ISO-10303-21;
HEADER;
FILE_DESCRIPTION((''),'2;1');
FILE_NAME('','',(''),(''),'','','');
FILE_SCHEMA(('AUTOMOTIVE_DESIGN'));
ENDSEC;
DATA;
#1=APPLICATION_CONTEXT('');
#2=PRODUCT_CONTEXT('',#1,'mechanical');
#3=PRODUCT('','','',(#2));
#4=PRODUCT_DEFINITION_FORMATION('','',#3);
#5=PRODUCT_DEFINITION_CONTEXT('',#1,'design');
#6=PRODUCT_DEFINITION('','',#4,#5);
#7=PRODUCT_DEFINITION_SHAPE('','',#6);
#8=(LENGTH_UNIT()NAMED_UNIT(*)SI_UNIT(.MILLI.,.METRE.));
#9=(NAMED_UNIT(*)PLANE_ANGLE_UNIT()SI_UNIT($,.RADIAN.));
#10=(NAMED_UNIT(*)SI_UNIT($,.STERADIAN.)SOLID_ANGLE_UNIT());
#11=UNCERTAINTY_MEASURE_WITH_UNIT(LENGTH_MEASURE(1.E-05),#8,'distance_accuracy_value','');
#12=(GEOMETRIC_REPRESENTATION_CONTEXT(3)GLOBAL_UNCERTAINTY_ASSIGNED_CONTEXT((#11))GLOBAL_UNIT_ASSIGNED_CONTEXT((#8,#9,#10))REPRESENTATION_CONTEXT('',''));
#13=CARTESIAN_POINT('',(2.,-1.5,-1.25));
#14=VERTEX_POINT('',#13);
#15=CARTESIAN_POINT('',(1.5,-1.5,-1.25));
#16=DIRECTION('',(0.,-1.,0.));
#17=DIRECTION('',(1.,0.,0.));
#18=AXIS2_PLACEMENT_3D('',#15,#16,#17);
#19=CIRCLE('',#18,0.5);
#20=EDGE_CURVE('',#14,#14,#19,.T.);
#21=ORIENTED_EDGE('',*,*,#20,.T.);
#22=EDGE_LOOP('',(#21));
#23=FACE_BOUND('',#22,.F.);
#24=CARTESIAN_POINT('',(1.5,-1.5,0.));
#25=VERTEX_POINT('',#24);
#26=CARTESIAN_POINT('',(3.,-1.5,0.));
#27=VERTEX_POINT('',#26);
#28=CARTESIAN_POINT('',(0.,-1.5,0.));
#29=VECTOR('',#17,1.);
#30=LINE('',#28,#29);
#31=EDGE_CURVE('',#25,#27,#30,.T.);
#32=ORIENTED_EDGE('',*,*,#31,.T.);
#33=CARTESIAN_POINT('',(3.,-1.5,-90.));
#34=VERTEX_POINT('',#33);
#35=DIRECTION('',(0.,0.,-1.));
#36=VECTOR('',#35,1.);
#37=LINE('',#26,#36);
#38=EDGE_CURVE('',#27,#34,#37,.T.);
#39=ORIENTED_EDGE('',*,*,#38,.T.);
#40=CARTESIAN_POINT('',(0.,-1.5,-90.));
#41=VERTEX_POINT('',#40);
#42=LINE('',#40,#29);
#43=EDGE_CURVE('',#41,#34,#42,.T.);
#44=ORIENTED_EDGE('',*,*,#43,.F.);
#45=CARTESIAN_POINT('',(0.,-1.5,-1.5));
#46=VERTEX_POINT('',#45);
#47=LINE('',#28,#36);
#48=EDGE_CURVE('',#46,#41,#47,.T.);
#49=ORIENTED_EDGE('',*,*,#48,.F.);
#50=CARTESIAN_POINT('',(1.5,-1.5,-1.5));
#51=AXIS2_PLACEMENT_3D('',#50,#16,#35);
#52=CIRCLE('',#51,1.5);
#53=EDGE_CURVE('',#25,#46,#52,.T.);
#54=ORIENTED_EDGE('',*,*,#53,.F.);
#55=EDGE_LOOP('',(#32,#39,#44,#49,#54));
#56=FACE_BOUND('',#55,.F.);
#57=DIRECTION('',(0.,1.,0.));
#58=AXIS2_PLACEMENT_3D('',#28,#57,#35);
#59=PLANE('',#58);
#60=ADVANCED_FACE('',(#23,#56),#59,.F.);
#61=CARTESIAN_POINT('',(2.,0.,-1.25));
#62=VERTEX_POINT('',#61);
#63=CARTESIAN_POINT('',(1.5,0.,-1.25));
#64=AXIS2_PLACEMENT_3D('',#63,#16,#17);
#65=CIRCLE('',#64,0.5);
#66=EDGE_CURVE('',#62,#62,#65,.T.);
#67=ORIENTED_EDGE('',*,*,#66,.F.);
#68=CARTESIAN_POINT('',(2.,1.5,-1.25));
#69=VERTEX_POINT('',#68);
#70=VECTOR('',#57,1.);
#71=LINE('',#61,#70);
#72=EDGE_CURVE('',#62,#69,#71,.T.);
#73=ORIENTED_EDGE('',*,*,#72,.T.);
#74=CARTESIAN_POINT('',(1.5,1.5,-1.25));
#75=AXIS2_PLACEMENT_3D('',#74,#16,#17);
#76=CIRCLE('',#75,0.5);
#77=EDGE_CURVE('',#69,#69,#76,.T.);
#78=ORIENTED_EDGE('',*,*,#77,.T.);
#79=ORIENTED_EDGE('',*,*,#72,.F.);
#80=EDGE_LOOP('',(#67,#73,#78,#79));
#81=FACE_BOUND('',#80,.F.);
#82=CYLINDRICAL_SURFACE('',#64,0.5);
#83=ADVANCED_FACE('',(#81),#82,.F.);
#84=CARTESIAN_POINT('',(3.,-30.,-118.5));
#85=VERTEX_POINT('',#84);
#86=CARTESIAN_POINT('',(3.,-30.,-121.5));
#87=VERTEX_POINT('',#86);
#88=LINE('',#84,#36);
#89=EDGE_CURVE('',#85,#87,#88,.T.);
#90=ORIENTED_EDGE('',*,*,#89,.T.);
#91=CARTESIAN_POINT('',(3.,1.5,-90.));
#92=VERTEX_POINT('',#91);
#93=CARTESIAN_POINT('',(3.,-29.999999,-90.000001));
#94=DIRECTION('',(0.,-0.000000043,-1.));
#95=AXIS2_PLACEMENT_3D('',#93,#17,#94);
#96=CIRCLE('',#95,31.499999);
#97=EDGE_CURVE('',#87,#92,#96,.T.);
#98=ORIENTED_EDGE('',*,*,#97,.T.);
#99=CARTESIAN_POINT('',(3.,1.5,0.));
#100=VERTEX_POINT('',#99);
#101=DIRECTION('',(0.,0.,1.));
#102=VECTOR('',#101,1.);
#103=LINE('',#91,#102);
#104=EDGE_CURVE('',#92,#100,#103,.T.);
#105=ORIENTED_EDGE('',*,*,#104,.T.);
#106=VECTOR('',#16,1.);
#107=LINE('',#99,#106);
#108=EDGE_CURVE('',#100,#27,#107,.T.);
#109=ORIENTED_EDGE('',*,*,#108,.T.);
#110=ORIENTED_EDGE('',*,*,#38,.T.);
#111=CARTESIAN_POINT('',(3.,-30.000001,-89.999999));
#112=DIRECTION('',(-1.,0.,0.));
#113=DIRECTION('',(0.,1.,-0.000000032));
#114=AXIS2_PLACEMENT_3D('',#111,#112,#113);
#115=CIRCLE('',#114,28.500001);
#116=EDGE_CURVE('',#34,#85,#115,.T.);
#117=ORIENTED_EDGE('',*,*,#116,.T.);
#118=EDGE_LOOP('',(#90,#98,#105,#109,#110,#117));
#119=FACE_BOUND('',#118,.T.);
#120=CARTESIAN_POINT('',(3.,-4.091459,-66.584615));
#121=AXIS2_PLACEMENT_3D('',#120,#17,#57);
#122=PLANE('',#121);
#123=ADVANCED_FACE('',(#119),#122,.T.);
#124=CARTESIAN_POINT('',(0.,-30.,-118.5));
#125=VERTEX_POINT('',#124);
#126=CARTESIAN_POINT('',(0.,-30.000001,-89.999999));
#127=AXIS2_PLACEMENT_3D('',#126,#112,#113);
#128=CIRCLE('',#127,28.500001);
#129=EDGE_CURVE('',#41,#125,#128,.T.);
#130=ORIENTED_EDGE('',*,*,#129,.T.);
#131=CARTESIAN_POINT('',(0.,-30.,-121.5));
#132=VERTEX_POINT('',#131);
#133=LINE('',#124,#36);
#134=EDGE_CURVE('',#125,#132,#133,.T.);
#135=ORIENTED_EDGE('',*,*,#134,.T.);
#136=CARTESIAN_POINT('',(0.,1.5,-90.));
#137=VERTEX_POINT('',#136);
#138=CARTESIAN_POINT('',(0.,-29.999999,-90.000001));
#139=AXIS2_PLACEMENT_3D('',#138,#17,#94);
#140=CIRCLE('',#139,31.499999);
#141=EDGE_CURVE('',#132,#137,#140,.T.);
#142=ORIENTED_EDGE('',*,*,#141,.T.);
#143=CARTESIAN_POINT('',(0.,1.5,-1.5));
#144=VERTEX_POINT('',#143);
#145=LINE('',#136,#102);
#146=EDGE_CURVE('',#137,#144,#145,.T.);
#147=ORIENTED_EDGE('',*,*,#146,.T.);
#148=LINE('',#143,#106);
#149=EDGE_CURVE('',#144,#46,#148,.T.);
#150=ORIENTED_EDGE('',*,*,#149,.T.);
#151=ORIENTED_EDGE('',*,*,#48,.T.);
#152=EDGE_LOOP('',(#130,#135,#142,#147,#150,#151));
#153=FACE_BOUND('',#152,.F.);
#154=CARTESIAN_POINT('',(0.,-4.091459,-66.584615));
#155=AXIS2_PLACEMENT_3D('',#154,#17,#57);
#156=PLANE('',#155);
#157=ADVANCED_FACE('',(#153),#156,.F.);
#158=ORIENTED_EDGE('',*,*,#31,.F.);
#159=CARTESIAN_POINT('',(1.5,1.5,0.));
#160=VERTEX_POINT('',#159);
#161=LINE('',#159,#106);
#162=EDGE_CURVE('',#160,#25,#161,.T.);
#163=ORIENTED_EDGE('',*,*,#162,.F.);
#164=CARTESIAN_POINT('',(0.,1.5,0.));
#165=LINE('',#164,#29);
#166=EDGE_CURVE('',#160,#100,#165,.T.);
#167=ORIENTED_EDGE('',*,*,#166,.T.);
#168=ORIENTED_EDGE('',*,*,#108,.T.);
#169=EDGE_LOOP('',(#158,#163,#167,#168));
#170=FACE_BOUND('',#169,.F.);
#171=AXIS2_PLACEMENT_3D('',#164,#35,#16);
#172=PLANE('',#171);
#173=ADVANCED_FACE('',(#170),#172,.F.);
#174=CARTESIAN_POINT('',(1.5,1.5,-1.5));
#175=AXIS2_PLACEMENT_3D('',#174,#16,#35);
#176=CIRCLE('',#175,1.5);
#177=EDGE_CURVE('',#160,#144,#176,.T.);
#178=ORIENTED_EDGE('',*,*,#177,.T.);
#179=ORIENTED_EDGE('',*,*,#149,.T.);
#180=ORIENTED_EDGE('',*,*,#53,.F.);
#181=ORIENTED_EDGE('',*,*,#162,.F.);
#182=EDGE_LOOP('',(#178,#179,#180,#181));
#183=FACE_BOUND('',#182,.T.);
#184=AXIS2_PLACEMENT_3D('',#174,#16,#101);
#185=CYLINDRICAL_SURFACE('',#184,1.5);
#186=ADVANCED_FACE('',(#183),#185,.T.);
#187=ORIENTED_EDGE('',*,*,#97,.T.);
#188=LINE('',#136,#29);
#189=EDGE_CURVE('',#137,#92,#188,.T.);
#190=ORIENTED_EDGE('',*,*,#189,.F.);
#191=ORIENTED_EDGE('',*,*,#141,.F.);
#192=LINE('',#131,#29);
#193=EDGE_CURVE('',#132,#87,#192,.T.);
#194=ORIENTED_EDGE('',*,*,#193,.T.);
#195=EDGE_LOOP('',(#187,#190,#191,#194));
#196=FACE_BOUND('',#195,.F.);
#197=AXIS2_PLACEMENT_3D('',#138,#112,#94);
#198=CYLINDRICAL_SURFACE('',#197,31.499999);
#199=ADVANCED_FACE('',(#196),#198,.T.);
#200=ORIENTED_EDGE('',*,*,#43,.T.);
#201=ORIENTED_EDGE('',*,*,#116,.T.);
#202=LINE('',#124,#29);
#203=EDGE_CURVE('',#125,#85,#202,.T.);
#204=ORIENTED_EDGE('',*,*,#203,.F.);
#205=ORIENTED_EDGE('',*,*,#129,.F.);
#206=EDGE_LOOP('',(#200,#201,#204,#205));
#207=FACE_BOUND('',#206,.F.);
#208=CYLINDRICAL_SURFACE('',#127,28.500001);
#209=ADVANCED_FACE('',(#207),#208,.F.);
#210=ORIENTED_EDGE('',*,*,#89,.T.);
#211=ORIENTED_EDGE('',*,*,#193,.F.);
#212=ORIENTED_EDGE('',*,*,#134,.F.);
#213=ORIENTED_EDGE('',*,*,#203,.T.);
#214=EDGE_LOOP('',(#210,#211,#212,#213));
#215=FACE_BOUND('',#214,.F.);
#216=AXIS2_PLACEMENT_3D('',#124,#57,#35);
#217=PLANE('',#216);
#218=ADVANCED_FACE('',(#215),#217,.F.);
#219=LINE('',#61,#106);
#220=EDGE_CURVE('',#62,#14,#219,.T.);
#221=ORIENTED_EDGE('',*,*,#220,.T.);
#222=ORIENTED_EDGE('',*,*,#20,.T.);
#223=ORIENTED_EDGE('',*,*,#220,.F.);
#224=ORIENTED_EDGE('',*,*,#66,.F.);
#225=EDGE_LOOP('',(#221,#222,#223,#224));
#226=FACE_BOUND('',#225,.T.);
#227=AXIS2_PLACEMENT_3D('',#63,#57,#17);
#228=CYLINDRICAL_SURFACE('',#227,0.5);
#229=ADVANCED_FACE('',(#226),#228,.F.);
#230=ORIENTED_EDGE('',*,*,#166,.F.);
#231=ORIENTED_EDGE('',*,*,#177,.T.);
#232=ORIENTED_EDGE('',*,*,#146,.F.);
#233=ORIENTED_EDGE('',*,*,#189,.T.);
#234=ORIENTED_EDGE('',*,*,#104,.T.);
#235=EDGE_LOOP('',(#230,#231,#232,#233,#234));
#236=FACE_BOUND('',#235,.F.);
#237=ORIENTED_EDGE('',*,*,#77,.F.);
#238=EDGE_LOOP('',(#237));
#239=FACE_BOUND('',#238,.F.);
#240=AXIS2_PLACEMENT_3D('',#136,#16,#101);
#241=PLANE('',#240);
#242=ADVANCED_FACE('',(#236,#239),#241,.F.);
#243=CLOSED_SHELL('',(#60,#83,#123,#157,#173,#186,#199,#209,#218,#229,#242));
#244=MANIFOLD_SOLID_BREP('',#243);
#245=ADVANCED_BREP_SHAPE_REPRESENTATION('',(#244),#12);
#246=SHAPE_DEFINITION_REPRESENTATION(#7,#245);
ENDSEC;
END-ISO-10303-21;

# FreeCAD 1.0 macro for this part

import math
import FreeCAD as App
import Part
import Sketcher


def edges_at(feature, points):
    """Names of the edges that pass closest to the given points."""
    edges = feature.Shape.Edges
    near = lambda p: min(range(len(edges)), key=lambda i: edges[i].distToShape(Part.Vertex(*p))[0])
    return sorted({f"Edge{near(p) + 1}" for p in points})

doc = App.newDocument("Part")
params = doc.addObject("Spreadsheet::Sheet", "Params")
for row, (alias, value) in enumerate([
    ("sketch1_radius", "28.500001 mm"),
    ("sketch1_radius2", "31.499999 mm"),
    ("sketch1_height", "90 mm"),
    ("pad1_length", "3 mm"),
    ("sketch2_diameter", "1 mm"),
    ("pocket1_length", "1.5 mm"),
    ("sketch3_diameter", "1 mm"),
    ("pocket2_length", "1.5 mm"),
    ("fillet_radius", "1.5 mm"),
], start=1):
    params.set(f"A{row}", alias)
    params.set(f"B{row}", "=" + value)
    params.setAlias(f"B{row}", alias)

body = doc.addObject("PartDesign::Body", "Body")

sketch1 = body.newObject("Sketcher::SketchObject", "Sketch")
sketch1.AttachmentSupport = (doc.getObject("YZ_Plane"), [""])
sketch1.MapMode = "FlatFace"
sketch1.addGeometry(Part.LineSegment(App.Vector(1.5, 0, 0), App.Vector(-1.5, 0, 0)), False)
sketch1.addGeometry(Part.LineSegment(App.Vector(-1.5, 0, 0), App.Vector(-1.5, -90, 0)), False)
sketch1.addGeometry(Part.ArcOfCircle(Part.Circle(App.Vector(-30, -90, 0), App.Vector(0, 0, 1), 28.5), math.radians(-90), math.radians(0)), False)
sketch1.addGeometry(Part.LineSegment(App.Vector(-30, -118.5, 0), App.Vector(-30, -121.5, 0)), False)
sketch1.addGeometry(Part.ArcOfCircle(Part.Circle(App.Vector(-30, -90, 0), App.Vector(0, 0, 1), 31.5), math.radians(-90), math.radians(0)), False)
sketch1.addGeometry(Part.LineSegment(App.Vector(1.5, -90, 0), App.Vector(1.5, 0, 0)), False)
sketch1.addConstraint(Sketcher.Constraint("Coincident", 0, 2, 1, 1))
sketch1.addConstraint(Sketcher.Constraint("Tangent", 1, 2, 2, 2))
sketch1.addConstraint(Sketcher.Constraint("Coincident", 2, 1, 3, 1))
sketch1.addConstraint(Sketcher.Constraint("Coincident", 3, 2, 4, 1))
sketch1.addConstraint(Sketcher.Constraint("Tangent", 4, 2, 5, 1))
sketch1.addConstraint(Sketcher.Constraint("Coincident", 5, 2, 0, 1))
sketch1.addConstraint(Sketcher.Constraint("Horizontal", 0))
sketch1.addConstraint(Sketcher.Constraint("Vertical", 1))
sketch1.addConstraint(Sketcher.Constraint("Vertical", 3))
sketch1.addConstraint(Sketcher.Constraint("Vertical", 5))
sketch1.addConstraint(Sketcher.Constraint("Coincident", 4, 3, 2, 3))
sketch1.addConstraint(Sketcher.Constraint("Symmetric", 0, 2, 5, 2, -1, 1))
sketch1.addConstraint(Sketcher.Constraint("Vertical", 4, 3, 2, 1))
sketch1.addConstraint(Sketcher.Constraint("Radius", 2, 28.500001))
sketch1.addConstraint(Sketcher.Constraint("Radius", 4, 31.499999))
sketch1.addConstraint(Sketcher.Constraint("DistanceY", 1, 2, 1, 1, 90.0))
sketch1.setExpression("Constraints[13]", "Params.sketch1_radius")
sketch1.setExpression("Constraints[14]", "Params.sketch1_radius2")
sketch1.setExpression("Constraints[15]", "Params.sketch1_height")
pad1 = body.newObject("PartDesign::Pad", "Pad")
pad1.Profile = sketch1
pad1.setExpression("Length", "Params.pad1_length")

sketch2 = body.newObject("Sketcher::SketchObject", "Sketch001")
sketch2.AttachmentSupport = (doc.getObject("XZ_Plane"), [""])
sketch2.MapMode = "FlatFace"
sketch2.addGeometry(Part.Circle(App.Vector(1.5, -1.2, 0), App.Vector(0, 0, 1), 0.5), False)
sketch2.addConstraint(Sketcher.Constraint("Diameter", 0, 1.0))
sketch2.addConstraint(Sketcher.Constraint("DistanceX", -1, 1, 0, 3, 1.5))
sketch2.addConstraint(Sketcher.Constraint("DistanceY", 0, 3, -1, 1, 1.25))
sketch2.setExpression("Constraints[0]", "Params.sketch2_diameter")
pocket1 = body.newObject("PartDesign::Pocket", "Pocket")
pocket1.Profile = sketch2
pocket1.setExpression("Length", "Params.pocket1_length")

sketch3 = body.newObject("Sketcher::SketchObject", "Sketch002")
sketch3.AttachmentSupport = (doc.getObject("XZ_Plane"), [""])
sketch3.MapMode = "FlatFace"
sketch3.addGeometry(Part.Circle(App.Vector(1.5, -1.2, 0), App.Vector(0, 0, 1), 0.5), False)
sketch3.addConstraint(Sketcher.Constraint("Diameter", 0, 1.0))
sketch3.addConstraint(Sketcher.Constraint("DistanceX", -1, 1, 0, 3, 1.5))
sketch3.addConstraint(Sketcher.Constraint("DistanceY", 0, 3, -1, 1, 1.25))
sketch3.setExpression("Constraints[0]", "Params.sketch3_diameter")
pocket2 = body.newObject("PartDesign::Pocket", "Pocket001")
pocket2.Profile = sketch3
pocket2.setExpression("Length", "Params.pocket2_length")
pocket2.Reversed = True
doc.recompute()

fillet = body.newObject("PartDesign::Fillet", "Fillet")
fillet.Base = (pocket2, edges_at(pocket2, [(0, 0, 0)]))
fillet.setExpression("Radius", "Params.fillet_radius")

doc.recompute()
